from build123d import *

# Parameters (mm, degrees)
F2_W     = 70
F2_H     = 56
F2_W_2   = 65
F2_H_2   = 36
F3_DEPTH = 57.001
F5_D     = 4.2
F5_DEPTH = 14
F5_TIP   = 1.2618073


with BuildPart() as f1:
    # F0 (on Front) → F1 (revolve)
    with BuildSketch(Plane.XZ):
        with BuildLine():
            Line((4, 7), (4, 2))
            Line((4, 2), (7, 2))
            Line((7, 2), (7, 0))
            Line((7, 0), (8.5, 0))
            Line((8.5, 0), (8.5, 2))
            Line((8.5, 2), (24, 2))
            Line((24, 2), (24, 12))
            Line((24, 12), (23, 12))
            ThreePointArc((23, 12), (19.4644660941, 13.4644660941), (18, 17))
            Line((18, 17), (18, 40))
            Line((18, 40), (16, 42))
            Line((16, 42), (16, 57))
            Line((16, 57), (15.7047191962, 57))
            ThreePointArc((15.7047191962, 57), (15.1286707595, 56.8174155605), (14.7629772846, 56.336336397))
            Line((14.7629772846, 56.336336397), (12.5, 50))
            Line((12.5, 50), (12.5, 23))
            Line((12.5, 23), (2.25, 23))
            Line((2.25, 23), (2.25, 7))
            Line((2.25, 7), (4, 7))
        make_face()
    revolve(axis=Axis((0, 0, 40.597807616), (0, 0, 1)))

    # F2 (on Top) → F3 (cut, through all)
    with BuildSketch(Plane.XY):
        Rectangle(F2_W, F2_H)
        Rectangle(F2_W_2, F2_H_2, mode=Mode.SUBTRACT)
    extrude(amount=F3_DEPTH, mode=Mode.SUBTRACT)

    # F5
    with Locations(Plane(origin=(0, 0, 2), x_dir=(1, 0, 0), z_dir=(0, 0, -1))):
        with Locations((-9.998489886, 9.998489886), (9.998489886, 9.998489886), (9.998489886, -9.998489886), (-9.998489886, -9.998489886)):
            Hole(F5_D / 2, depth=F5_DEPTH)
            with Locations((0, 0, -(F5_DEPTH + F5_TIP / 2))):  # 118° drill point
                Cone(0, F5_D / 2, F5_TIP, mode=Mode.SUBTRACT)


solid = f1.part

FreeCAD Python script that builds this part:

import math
import FreeCAD as App
import Part
import Sketcher
from FreeCAD import Vector
Q = App.Units.Quantity

doc = App.newDocument("Part")
body = doc.addObject("PartDesign::Body", "Body")

# Sketch on XZ plane
sketch1 = body.newObject("Sketcher::SketchObject", "Sketch")
sketch1.AttachmentSupport = (doc.getObject("XZ_Plane"), [""])
sketch1.MapMode = "FlatFace"
sketch1.addGeometry([
    Part.LineSegment(Vector(4, 7, 0), Vector(4, 2, 0)),  # 0
    Part.LineSegment(Vector(4, 2, 0), Vector(7, 2, 0)),  # 1
    Part.LineSegment(Vector(7, 2, 0), Vector(7, 0, 0)),  # 2
    Part.LineSegment(Vector(7, 0, 0), Vector(8.5, 0, 0)),  # 3
    Part.LineSegment(Vector(8.5, 0, 0), Vector(8.5, 2, 0)),  # 4
    Part.LineSegment(Vector(8.5, 2, 0), Vector(24, 2, 0)),  # 5
    Part.LineSegment(Vector(24, 2, 0), Vector(24, 12, 0)),  # 6
    Part.LineSegment(Vector(24, 12, 0), Vector(23, 12, 0)),  # 7
    Part.ArcOfCircle(Part.Circle(Vector(23, 17, 0), Vector(0, 0, 1), 5), math.radians(180), math.radians(270)),  # 8
    Part.LineSegment(Vector(18, 17, 0), Vector(18, 40, 0)),  # 9
    Part.LineSegment(Vector(18, 40, 0), Vector(16, 42, 0)),  # 10
    Part.LineSegment(Vector(16, 42, 0), Vector(16, 57, 0)),  # 11
    Part.LineSegment(Vector(16, 57, 0), Vector(15.704719, 57, 0)),  # 12
    Part.ArcOfCircle(Part.Circle(Vector(15.704719, 56, 0), Vector(0, 0, 1), 1), math.radians(90), math.radians(160.346176)),  # 13
    Part.LineSegment(Vector(14.762977, 56.336336, 0), Vector(12.5, 50, 0)),  # 14
    Part.LineSegment(Vector(12.5, 50, 0), Vector(12.5, 23, 0)),  # 15
    Part.LineSegment(Vector(12.5, 23, 0), Vector(2.25, 23, 0)),  # 16
    Part.LineSegment(Vector(2.25, 23, 0), Vector(2.25, 7, 0)),  # 17
    Part.LineSegment(Vector(2.25, 7, 0), Vector(4, 7, 0)),  # 18
], False)
sketch1.addConstraint([
    Sketcher.Constraint("Coincident", 0, 2, 1, 1),
    Sketcher.Constraint("Coincident", 1, 2, 2, 1),
    Sketcher.Constraint("Coincident", 2, 2, 3, 1),
    Sketcher.Constraint("Coincident", 3, 2, 4, 1),
    Sketcher.Constraint("Coincident", 4, 2, 5, 1),
    Sketcher.Constraint("Coincident", 5, 2, 6, 1),
    Sketcher.Constraint("Coincident", 6, 2, 7, 1),
    Sketcher.Constraint("Tangent", 7, 2, 8, 2),
    Sketcher.Constraint("Tangent", 8, 1, 9, 1),
    Sketcher.Constraint("Coincident", 9, 2, 10, 1),
    Sketcher.Constraint("Coincident", 10, 2, 11, 1),
    Sketcher.Constraint("Coincident", 11, 2, 12, 1),
    Sketcher.Constraint("Tangent", 12, 2, 13, 1),
    Sketcher.Constraint("Tangent", 13, 2, 14, 1),
    Sketcher.Constraint("Coincident", 14, 2, 15, 1),
    Sketcher.Constraint("Coincident", 15, 2, 16, 1),
    Sketcher.Constraint("Coincident", 16, 2, 17, 1),
    Sketcher.Constraint("Coincident", 17, 2, 18, 1),
    Sketcher.Constraint("Coincident", 18, 2, 0, 1),
    Sketcher.Constraint("Vertical", 0),
    Sketcher.Constraint("Horizontal", 1),
    Sketcher.Constraint("Vertical", 2),
    Sketcher.Constraint("Horizontal", 3),
    Sketcher.Constraint("Vertical", 4),
    Sketcher.Constraint("Horizontal", 5),
    Sketcher.Constraint("Vertical", 6),
    Sketcher.Constraint("Horizontal", 7),
    Sketcher.Constraint("Vertical", 9),
    Sketcher.Constraint("Vertical", 11),
    Sketcher.Constraint("Horizontal", 12),
    Sketcher.Constraint("Vertical", 15),
    Sketcher.Constraint("Horizontal", 16),
    Sketcher.Constraint("Vertical", 17),
    Sketcher.Constraint("Horizontal", 18),
    Sketcher.Constraint("PointOnObject", 2, 2, -1),
    Sketcher.Constraint("Horizontal", 1, 2, 4, 2),
    Sketcher.Constraint("Radius", 8, Q("5 mm")),
    Sketcher.Constraint("Radius", 13, Q("1 mm")),
    Sketcher.Constraint("DistanceX", 1, 1, 1, 2, Q("3 mm")),
    Sketcher.Constraint("DistanceX", 7, 2, 7, 1, Q("1 mm")),
    Sketcher.Constraint("DistanceY", 0, 2, 0, 1, Q("5 mm")),
    Sketcher.Constraint("DistanceY", 2, 2, 2, 1, Q("2 mm")),
    Sketcher.Constraint("DistanceY", 6, 1, 6, 2, Q("10 mm")),
    Sketcher.Constraint("DistanceY", 9, 1, 9, 2, Q("23 mm")),
    Sketcher.Constraint("DistanceY", 11, 1, 11, 2, Q("15 mm")),
    Sketcher.Constraint("DistanceY", 15, 2, 15, 1, Q("27 mm")),
    Sketcher.Constraint("DistanceY", 17, 2, 17, 1, Q("16 mm")),
    Sketcher.Constraint("Angle", 10, Q("135 deg")),
    Sketcher.Constraint("DistanceX", 3, 1, 3, 2, Q("1.5 mm")),
    Sketcher.Constraint("DistanceX", 5, 1, 5, 2, Q("15.5 mm")),
    Sketcher.Constraint("DistanceX", -1, 1, 8, 3, Q("23 mm")),
    Sketcher.Constraint("DistanceY", -1, 1, 13, 3, Q("56 mm")),
    Sketcher.Constraint("DistanceX", 16, 2, 16, 1, Q("10.25 mm")),
    Sketcher.Constraint("DistanceX", 18, 1, 18, 2, Q("1.75 mm")),
    Sketcher.Constraint("DistanceX", 12, 2, 12, 1, Q("0.295281 mm")),
])
revolution = body.newObject("PartDesign::Revolution", "Revolution")
revolution.Profile = sketch1
revolution.ReferenceAxis = (sketch1, ["V_Axis"])
revolution.Angle = 360

# Sketch on XY plane
sketch2 = body.newObject("Sketcher::SketchObject", "Sketch001")
sketch2.AttachmentSupport = (doc.getObject("XY_Plane"), [""])
sketch2.MapMode = "FlatFace"
sketch2.addGeometry([
    Part.LineSegment(Vector(-35, 28, 0), Vector(-35, -28, 0)),  # 0
    Part.LineSegment(Vector(-35, -28, 0), Vector(35, -28, 0)),  # 1
    Part.LineSegment(Vector(35, -28, 0), Vector(35, 28, 0)),  # 2
    Part.LineSegment(Vector(35, 28, 0), Vector(-35, 28, 0)),  # 3
    Part.LineSegment(Vector(32.5, -18, 0), Vector(-32.5, -18, 0)),  # 4
    Part.LineSegment(Vector(-32.5, -18, 0), Vector(-32.5, 18, 0)),  # 5
    Part.LineSegment(Vector(-32.5, 18, 0), Vector(32.5, 18, 0)),  # 6
    Part.LineSegment(Vector(32.5, 18, 0), Vector(32.5, -18, 0)),  # 7
], False)
sketch2.addConstraint([
    Sketcher.Constraint("Coincident", 0, 2, 1, 1),
    Sketcher.Constraint("Coincident", 1, 2, 2, 1),
    Sketcher.Constraint("Coincident", 2, 2, 3, 1),
    Sketcher.Constraint("Coincident", 3, 2, 0, 1),
    Sketcher.Constraint("Coincident", 4, 2, 5, 1),
    Sketcher.Constraint("Coincident", 5, 2, 6, 1),
    Sketcher.Constraint("Coincident", 6, 2, 7, 1),
    Sketcher.Constraint("Coincident", 7, 2, 4, 1),
    Sketcher.Constraint("Vertical", 0),
    Sketcher.Constraint("Horizontal", 1),
    Sketcher.Constraint("Vertical", 2),
    Sketcher.Constraint("Horizontal", 3),
    Sketcher.Constraint("Horizontal", 4),
    Sketcher.Constraint("Vertical", 5),
    Sketcher.Constraint("Horizontal", 6),
    Sketcher.Constraint("Vertical", 7),
    Sketcher.Constraint("Symmetric", 0, 2, 2, 2, -1, 1),
    Sketcher.Constraint("Symmetric", 4, 2, 6, 2, -1, 1),
    Sketcher.Constraint("DistanceX", 1, 1, 1, 2, Q("70 mm")),
    Sketcher.Constraint("DistanceX", 4, 2, 4, 1, Q("65 mm")),
    Sketcher.Constraint("DistanceY", 0, 2, 0, 1, Q("56 mm")),
    Sketcher.Constraint("DistanceY", 5, 1, 5, 2, Q("36 mm")),
])
pocket1 = body.newObject("PartDesign::Pocket", "Pocket")
pocket1.Profile = sketch2
pocket1.Type = "ThroughAll"
pocket1.Reversed = True

# Sketch on XY plane
sketch3 = body.newObject("Sketcher::SketchObject", "Sketch002")
sketch3.AttachmentSupport = (doc.getObject("XY_Plane"), [""])
sketch3.MapMode = "FlatFace"
sketch3.AttachmentOffset = App.Placement(Vector(0, 0, 2), App.Rotation())
sketch3.addGeometry([
    Part.Circle(Vector(-9.99849, -9.99849, 0), Vector(0, 0, 1), 2.1),
    Part.Circle(Vector(9.99849, -9.99849, 0), Vector(0, 0, 1), 2.1),
    Part.Circle(Vector(9.99849, 9.99849, 0), Vector(0, 0, 1), 2.1),
    Part.Circle(Vector(-9.99849, 9.99849, 0), Vector(0, 0, 1), 2.1),
], False)
sketch3.addConstraint([
    Sketcher.Constraint("Equal", 0, 1),
    Sketcher.Constraint("Equal", 1, 2),
    Sketcher.Constraint("Equal", 2, 3),
    Sketcher.Constraint("Symmetric", 0, 3, 2, 3, -1, 1),
    Sketcher.Constraint("Symmetric", 1, 3, 3, 3, -1, 1),
    Sketcher.Constraint("Symmetric", 0, 3, 1, 3, -2),
    Sketcher.Constraint("Diameter", 0, Q("4.2 mm")),
    Sketcher.Constraint("DistanceX", 0, 3, -1, 1, Q("9.99849 mm")),
    Sketcher.Constraint("DistanceY", 0, 3, -1, 1, Q("9.99849 mm")),
])
doc.recompute()
hole = body.newObject("PartDesign::Hole", "Hole")
hole.Profile = sketch3
hole.ThreadType = "None"
hole.Diameter = 4.2
hole.DepthType = "Dimension"
hole.Depth = 14
hole.DrillPoint = "Angled"
hole.DrillPointAngle = 118
hole.Reversed = True

doc.recompute()
